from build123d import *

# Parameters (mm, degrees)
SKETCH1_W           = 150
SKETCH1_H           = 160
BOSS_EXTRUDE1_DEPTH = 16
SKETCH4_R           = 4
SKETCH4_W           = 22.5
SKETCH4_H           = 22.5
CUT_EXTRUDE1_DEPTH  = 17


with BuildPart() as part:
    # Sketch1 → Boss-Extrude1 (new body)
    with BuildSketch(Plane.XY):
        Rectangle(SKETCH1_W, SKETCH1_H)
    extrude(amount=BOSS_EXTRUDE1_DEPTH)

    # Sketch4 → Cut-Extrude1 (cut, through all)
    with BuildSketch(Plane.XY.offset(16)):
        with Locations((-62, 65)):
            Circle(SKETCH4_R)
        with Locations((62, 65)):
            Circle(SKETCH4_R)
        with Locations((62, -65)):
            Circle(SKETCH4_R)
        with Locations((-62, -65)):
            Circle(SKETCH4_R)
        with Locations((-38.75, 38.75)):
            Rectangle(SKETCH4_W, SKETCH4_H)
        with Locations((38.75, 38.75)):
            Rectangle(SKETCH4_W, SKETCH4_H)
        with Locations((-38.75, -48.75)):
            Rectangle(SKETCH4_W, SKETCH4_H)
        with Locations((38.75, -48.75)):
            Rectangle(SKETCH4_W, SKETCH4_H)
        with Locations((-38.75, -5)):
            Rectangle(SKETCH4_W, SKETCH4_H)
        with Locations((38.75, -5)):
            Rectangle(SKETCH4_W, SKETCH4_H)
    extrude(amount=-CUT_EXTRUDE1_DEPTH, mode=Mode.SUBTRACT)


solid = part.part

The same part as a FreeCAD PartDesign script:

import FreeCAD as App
import Part
import Sketcher


def add_polygon(sketch, points):
    """Adds a closed chain of lines whose ends are joined by coincident constraints."""
    first, n = sketch.GeometryCount, len(points)
    for a, b in zip(points, points[1:] + points[:1]):
        sketch.addGeometry(Part.LineSegment(App.Vector(*a, 0), App.Vector(*b, 0)), False)
    for i in range(n):
        sketch.addConstraint(Sketcher.Constraint("Coincident", first + i, 2, first + (i + 1) % n, 1))

doc = App.newDocument("Part")
body = doc.addObject("PartDesign::Body", "Body")

# Sketch on XY plane
sketch1 = body.newObject("Sketcher::SketchObject", "Sketch")
sketch1.AttachmentSupport = (doc.getObject("XY_Plane"), [""])
sketch1.MapMode = "FlatFace"
add_polygon(sketch1, [(-75, 80), (-75, -80), (75, -80), (75, 80)])  # lines 0-3
sketch1.addConstraint(Sketcher.Constraint("Vertical", 0))
sketch1.addConstraint(Sketcher.Constraint("Horizontal", 1))
sketch1.addConstraint(Sketcher.Constraint("Vertical", 2))
sketch1.addConstraint(Sketcher.Constraint("Horizontal", 3))
sketch1.addConstraint(Sketcher.Constraint("Symmetric", 0, 2, 2, 2, -1, 1))
sketch1.addConstraint(Sketcher.Constraint("DistanceX", 1, 1, 1, 2, 150.0))
sketch1.addConstraint(Sketcher.Constraint("DistanceY", 0, 2, 0, 1, 160.0))
pad1 = body.newObject("PartDesign::Pad", "Pad")
pad1.Profile = sketch1
pad1.Length = 16

# Sketch on XY plane
sketch2 = body.newObject("Sketcher::SketchObject", "Sketch001")
sketch2.AttachmentSupport = (doc.getObject("XY_Plane"), [""])
sketch2.MapMode = "FlatFace"
sketch2.AttachmentOffset = App.Placement(App.Vector(0, 0, 16), App.Rotation())
sketch2.addGeometry(Part.Circle(App.Vector(-62, 65, 0), App.Vector(0, 0, 1), 4), False)  # 0
sketch2.addGeometry(Part.Circle(App.Vector(62, 65, 0), App.Vector(0, 0, 1), 4), False)  # 1
sketch2.addGeometry(Part.Circle(App.Vector(62, -65, 0), App.Vector(0, 0, 1), 4), False)  # 2
sketch2.addGeometry(Part.Circle(App.Vector(-62, -65, 0), App.Vector(0, 0, 1), 4), False)  # 3
add_polygon(sketch2, [(-50, 50), (-50, 27.5), (-27.5, 27.5), (-27.5, 50)])  # lines 4-7
add_polygon(sketch2, [(27.5, 50), (27.5, 27.5), (50, 27.5), (50, 50)])  # lines 8-11
add_polygon(sketch2, [(-50, -37.5), (-50, -60), (-27.5, -60), (-27.5, -37.5)])  # lines 12-15
add_polygon(sketch2, [(27.5, -37.5), (27.5, -60), (50, -60), (50, -37.5)])  # lines 16-19
add_polygon(sketch2, [(-50, 6.2), (-50, -16.2), (-27.5, -16.2), (-27.5, 6.2)])  # lines 20-23
add_polygon(sketch2, [(27.5, 6.2), (27.5, -16.2), (50, -16.2), (50, 6.2)])  # lines 24-27
sketch2.addConstraint(Sketcher.Constraint("Vertical", 4))
sketch2.addConstraint(Sketcher.Constraint("Horizontal", 5))
sketch2.addConstraint(Sketcher.Constraint("Vertical", 6))
sketch2.addConstraint(Sketcher.Constraint("Horizontal", 7))
sketch2.addConstraint(Sketcher.Constraint("Vertical", 8))
sketch2.addConstraint(Sketcher.Constraint("Horizontal", 9))
sketch2.addConstraint(Sketcher.Constraint("Vertical", 10))
sketch2.addConstraint(Sketcher.Constraint("Horizontal", 11))
sketch2.addConstraint(Sketcher.Constraint("Vertical", 12))
sketch2.addConstraint(Sketcher.Constraint("Horizontal", 13))
sketch2.addConstraint(Sketcher.Constraint("Vertical", 14))
sketch2.addConstraint(Sketcher.Constraint("Horizontal", 15))
sketch2.addConstraint(Sketcher.Constraint("Vertical", 16))
sketch2.addConstraint(Sketcher.Constraint("Horizontal", 17))
sketch2.addConstraint(Sketcher.Constraint("Vertical", 18))
sketch2.addConstraint(Sketcher.Constraint("Horizontal", 19))
sketch2.addConstraint(Sketcher.Constraint("Vertical", 20))
sketch2.addConstraint(Sketcher.Constraint("Horizontal", 21))
sketch2.addConstraint(Sketcher.Constraint("Vertical", 22))
sketch2.addConstraint(Sketcher.Constraint("Horizontal", 23))
sketch2.addConstraint(Sketcher.Constraint("Vertical", 24))
sketch2.addConstraint(Sketcher.Constraint("Horizontal", 25))
sketch2.addConstraint(Sketcher.Constraint("Vertical", 26))
sketch2.addConstraint(Sketcher.Constraint("Horizontal", 27))
sketch2.addConstraint(Sketcher.Constraint("Equal", 0, 1))
sketch2.addConstraint(Sketcher.Constraint("Equal", 1, 2))
sketch2.addConstraint(Sketcher.Constraint("Equal", 2, 3))
sketch2.addConstraint(Sketcher.Constraint("Symmetric", 0, 3, 2, 3, -1, 1))
sketch2.addConstraint(Sketcher.Constraint("Symmetric", 1, 3, 3, 3, -1, 1))
sketch2.addConstraint(Sketcher.Constraint("Symmetric", 0, 3, 1, 3, -2))
sketch2.addConstraint(Sketcher.Constraint("Symmetric", 5, 2, 8, 2, -2))
sketch2.addConstraint(Sketcher.Constraint("Symmetric", 7, 2, 10, 2, -2))
sketch2.addConstraint(Sketcher.Constraint("Symmetric", 13, 2, 16, 2, -2))
sketch2.addConstraint(Sketcher.Constraint("Symmetric", 15, 2, 18, 2, -2))
sketch2.addConstraint(Sketcher.Constraint("Symmetric", 21, 2, 24, 2, -2))
sketch2.addConstraint(Sketcher.Constraint("Symmetric", 23, 2, 26, 2, -2))
sketch2.addConstraint(Sketcher.Constraint("Vertical", 7, 2, 12, 2))
sketch2.addConstraint(Sketcher.Constraint("Vertical", 6, 2, 13, 2))
sketch2.addConstraint(Sketcher.Constraint("Vertical", 15, 2, 20, 2))
sketch2.addConstraint(Sketcher.Constraint("Vertical", 14, 2, 21, 2))
sketch2.addConstraint(Sketcher.Constraint("Equal", 27, 4))
sketch2.addConstraint(Sketcher.Constraint("Equal", 10, 12))
sketch2.addConstraint(Sketcher.Constraint("Equal", 18, 20))
sketch2.addConstraint(Sketcher.Constraint("Diameter", 0, 8.0))
sketch2.addConstraint(Sketcher.Constraint("DistanceX", 5, 1, 5, 2, 22.5))
sketch2.addConstraint(Sketcher.Constraint("DistanceX", 0, 3, -1, 1, 62.0))
sketch2.addConstraint(Sketcher.Constraint("DistanceY", -1, 1, 0, 3, 65.0))
sketch2.addConstraint(Sketcher.Constraint("DistanceX", 4, 2, -1, 1, 50.0))
sketch2.addConstraint(Sketcher.Constraint("DistanceY", -1, 1, 6, 2, 50.0))
sketch2.addConstraint(Sketcher.Constraint("DistanceY", 12, 2, -1, 1, 60.0))
sketch2.addConstraint(Sketcher.Constraint("DistanceY", 20, 2, -1, 1, 16.25))
pocket1 = body.newObject("PartDesign::Pocket", "Pocket")
pocket1.Profile = sketch2
pocket1.Type = "ThroughAll"

doc.recompute()
